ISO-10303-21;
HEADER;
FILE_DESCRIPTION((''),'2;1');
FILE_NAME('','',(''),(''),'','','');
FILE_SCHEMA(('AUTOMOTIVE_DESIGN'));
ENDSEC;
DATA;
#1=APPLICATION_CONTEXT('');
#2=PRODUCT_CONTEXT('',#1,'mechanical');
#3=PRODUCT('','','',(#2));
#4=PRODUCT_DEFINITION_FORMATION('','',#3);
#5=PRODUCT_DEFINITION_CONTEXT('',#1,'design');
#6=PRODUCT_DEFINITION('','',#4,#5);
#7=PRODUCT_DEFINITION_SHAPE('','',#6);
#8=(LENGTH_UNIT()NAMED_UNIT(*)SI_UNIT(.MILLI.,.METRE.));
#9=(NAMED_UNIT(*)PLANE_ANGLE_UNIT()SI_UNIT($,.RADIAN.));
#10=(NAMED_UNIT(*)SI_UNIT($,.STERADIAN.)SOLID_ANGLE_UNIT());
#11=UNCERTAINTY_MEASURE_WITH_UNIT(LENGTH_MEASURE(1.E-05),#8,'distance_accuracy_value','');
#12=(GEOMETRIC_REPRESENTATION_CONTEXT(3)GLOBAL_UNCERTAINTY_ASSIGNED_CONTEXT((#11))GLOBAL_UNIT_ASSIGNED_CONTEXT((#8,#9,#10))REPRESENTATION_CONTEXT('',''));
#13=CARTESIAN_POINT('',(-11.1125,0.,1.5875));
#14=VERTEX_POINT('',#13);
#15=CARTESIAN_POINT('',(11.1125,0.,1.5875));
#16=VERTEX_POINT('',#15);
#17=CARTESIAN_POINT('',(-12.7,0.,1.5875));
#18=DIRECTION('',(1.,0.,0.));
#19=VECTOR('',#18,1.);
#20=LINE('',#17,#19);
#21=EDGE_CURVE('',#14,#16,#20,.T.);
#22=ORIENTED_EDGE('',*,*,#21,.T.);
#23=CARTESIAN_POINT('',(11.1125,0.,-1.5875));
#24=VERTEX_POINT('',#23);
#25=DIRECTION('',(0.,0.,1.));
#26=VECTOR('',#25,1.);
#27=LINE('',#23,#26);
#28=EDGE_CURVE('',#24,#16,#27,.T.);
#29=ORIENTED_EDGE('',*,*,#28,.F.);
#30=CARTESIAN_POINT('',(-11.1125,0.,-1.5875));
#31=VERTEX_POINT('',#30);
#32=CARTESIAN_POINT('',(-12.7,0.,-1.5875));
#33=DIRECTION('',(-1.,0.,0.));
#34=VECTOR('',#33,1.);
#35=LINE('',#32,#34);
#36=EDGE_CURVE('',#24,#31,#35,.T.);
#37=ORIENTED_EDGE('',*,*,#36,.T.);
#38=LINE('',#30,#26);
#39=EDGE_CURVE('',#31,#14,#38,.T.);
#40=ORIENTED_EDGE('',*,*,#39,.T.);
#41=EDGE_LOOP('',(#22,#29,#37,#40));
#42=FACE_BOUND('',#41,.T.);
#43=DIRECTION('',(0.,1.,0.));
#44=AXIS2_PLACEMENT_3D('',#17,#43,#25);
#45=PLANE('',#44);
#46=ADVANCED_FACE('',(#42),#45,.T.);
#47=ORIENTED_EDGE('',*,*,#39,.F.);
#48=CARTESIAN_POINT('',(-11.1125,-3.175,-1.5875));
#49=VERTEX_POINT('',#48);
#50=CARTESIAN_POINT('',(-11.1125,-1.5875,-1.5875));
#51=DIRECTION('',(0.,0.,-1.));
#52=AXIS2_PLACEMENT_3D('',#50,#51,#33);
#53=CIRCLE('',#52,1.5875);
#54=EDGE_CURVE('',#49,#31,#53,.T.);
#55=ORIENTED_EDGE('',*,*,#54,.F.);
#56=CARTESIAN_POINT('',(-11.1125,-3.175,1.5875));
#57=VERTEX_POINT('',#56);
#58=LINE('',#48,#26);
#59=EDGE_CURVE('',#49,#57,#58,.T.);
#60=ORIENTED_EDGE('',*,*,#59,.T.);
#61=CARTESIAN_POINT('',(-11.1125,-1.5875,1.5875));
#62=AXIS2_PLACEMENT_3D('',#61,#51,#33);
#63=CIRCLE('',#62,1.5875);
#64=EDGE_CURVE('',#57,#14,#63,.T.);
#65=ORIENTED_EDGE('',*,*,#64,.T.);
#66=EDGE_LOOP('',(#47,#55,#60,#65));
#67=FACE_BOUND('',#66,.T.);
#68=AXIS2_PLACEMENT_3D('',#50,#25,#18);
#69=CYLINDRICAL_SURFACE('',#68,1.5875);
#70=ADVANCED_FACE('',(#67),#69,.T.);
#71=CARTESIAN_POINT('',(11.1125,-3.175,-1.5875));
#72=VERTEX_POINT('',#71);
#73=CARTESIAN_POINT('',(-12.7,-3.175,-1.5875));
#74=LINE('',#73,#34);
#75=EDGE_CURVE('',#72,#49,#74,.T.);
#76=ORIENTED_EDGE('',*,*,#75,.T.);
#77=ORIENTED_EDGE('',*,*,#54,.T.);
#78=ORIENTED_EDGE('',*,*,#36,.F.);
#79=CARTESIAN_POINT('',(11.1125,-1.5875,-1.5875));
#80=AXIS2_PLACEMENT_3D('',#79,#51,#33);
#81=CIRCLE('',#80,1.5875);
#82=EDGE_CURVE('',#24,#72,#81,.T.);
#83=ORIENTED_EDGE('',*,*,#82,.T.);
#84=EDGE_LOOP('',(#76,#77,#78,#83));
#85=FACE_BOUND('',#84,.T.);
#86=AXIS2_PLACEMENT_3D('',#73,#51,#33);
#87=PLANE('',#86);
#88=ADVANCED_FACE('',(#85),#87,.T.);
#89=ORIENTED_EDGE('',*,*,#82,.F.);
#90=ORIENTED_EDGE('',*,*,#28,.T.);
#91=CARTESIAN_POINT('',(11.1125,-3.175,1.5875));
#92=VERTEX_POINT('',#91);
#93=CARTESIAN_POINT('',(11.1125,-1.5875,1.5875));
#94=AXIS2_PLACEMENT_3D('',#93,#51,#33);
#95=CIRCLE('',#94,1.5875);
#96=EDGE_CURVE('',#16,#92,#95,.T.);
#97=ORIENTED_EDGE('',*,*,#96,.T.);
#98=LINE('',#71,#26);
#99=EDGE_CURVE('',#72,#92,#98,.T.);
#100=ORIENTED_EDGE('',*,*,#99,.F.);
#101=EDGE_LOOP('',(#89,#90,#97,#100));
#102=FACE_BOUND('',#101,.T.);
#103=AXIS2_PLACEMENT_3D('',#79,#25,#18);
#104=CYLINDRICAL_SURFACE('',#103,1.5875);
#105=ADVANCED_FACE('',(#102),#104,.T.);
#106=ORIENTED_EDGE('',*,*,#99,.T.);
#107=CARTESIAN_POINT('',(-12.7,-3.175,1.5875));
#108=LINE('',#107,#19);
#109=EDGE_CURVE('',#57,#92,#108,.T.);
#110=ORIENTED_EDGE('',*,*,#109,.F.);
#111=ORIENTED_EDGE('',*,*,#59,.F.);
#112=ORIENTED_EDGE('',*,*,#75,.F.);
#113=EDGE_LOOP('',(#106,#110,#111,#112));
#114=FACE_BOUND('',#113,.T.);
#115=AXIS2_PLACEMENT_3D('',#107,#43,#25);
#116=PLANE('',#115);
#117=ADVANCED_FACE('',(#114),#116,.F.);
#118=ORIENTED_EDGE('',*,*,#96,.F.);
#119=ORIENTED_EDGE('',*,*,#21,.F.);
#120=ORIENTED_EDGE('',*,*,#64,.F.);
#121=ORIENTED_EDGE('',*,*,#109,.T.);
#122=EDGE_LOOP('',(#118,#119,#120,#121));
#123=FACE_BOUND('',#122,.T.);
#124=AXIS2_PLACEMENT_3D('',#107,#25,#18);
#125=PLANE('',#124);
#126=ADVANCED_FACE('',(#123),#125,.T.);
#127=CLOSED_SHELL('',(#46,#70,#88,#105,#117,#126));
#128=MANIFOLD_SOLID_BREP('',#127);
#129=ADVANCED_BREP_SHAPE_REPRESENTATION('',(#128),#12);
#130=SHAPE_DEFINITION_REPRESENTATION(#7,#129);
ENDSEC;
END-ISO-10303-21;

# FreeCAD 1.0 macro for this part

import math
import FreeCAD as App
import Part
import Sketcher

V = App.Vector
Q = App.Units.Quantity


def add_polygon(sketch, points):
    """Adds a closed chain of lines whose ends are joined by coincident constraints."""
    first, n = sketch.GeometryCount, len(points)
    for a, b in zip(points, points[1:] + points[:1]):
        sketch.addGeometry(Part.LineSegment(App.Vector(*a, 0), App.Vector(*b, 0)), False)
    for i in range(n):
        sketch.addConstraint(Sketcher.Constraint("Coincident", first + i, 2, first + (i + 1) % n, 1))

doc = App.newDocument("Part")
body = doc.addObject("PartDesign::Body", "Body")

sketch1 = body.newObject("Sketcher::SketchObject", "Sketch")
sketch1.AttachmentSupport = (doc.getObject("XZ_Plane"), [""])
sketch1.MapMode = "FlatFace"
add_polygon(sketch1, [(-12.7, -1.6), (-12.7, 1.6), (12.7, 1.6), (12.7, -1.6)])
sketch1.addConstraint([
    Sketcher.Constraint("Vertical", 0),
    Sketcher.Constraint("Horizontal", 1),
    Sketcher.Constraint("Vertical", 2),
    Sketcher.Constraint("Horizontal", 3),
    Sketcher.Constraint("Symmetric", 0, 2, 2, 2, -1, 1),
    Sketcher.Constraint("DistanceX", 1, 1, 1, 2, Q("1 in")),
    Sketcher.Constraint("DistanceY", 0, 1, 0, 2, Q("0.125 in")),
])
pad1 = body.newObject("PartDesign::Pad", "Pad")
pad1.Profile = sketch1
pad1.Length = Q("0.125 in")

sketch2 = body.newObject("Sketcher::SketchObject", "Sketch001")
sketch2.AttachmentSupport = (doc.getObject("XY_Plane"), [""])
sketch2.MapMode = "FlatFace"
sketch2.AttachmentOffset = App.Placement(V(0, 0, 0.0625 * 25.4), App.Rotation())
add_polygon(sketch2, [(16.3, 3.6), (16.3, -6.8), (-16.3, -6.8), (-16.3, 3.6)])
sketch2.addGeometry(Part.ArcOfCircle(Part.Circle(V(11.1, -1.6, 0), V(0, 0, 1), 1.6), math.radians(-90), math.radians(90)), False)
sketch2.addGeometry(Part.LineSegment(V(11.1, 0, 0), V(-11.1, 0, 0)), False)
sketch2.addGeometry(Part.ArcOfCircle(Part.Circle(V(-11.1, -1.6, 0), V(0, 0, 1), 1.6), math.radians(90), math.radians(270)), False)
sketch2.addGeometry(Part.LineSegment(V(-11.1, -3.2, 0), V(11.1, -3.2, 0)), False)
sketch2.addConstraint([
    Sketcher.Constraint("Tangent", 4, 2, 5, 1),
    Sketcher.Constraint("Tangent", 5, 2, 6, 1),
    Sketcher.Constraint("Tangent", 6, 2, 7, 1),
    Sketcher.Constraint("Tangent", 7, 2, 4, 1),
    Sketcher.Constraint("Vertical", 0),
    Sketcher.Constraint("Horizontal", 1),
    Sketcher.Constraint("Vertical", 2),
    Sketcher.Constraint("Horizontal", 3),
    Sketcher.Constraint("Horizontal", 5),
    Sketcher.Constraint("Horizontal", 7),
    Sketcher.Constraint("Symmetric", 4, 2, 5, 2, -1, 1),
    Sketcher.Constraint("Radius", 4, Q("0.0625 in")),
    Sketcher.Constraint("DistanceX", 5, 2, 5, 1, Q("0.875 in")),
    Sketcher.Constraint("DistanceX", 1, 2, 1, 1, Q("32.558 mm")),
    Sketcher.Constraint("DistanceY", 0, 2, 0, 1, Q("10.333 mm")),
    Sketcher.Constraint("DistanceX", -1, 1, 0, 2, Q("16.279 mm")),
    Sketcher.Constraint("DistanceY", 0, 2, -1, 1, Q("6.754 mm")),
])
pocket1 = body.newObject("PartDesign::Pocket", "Pocket")
pocket1.Profile = sketch2
pocket1.Type = "ThroughAll"

doc.recompute()
